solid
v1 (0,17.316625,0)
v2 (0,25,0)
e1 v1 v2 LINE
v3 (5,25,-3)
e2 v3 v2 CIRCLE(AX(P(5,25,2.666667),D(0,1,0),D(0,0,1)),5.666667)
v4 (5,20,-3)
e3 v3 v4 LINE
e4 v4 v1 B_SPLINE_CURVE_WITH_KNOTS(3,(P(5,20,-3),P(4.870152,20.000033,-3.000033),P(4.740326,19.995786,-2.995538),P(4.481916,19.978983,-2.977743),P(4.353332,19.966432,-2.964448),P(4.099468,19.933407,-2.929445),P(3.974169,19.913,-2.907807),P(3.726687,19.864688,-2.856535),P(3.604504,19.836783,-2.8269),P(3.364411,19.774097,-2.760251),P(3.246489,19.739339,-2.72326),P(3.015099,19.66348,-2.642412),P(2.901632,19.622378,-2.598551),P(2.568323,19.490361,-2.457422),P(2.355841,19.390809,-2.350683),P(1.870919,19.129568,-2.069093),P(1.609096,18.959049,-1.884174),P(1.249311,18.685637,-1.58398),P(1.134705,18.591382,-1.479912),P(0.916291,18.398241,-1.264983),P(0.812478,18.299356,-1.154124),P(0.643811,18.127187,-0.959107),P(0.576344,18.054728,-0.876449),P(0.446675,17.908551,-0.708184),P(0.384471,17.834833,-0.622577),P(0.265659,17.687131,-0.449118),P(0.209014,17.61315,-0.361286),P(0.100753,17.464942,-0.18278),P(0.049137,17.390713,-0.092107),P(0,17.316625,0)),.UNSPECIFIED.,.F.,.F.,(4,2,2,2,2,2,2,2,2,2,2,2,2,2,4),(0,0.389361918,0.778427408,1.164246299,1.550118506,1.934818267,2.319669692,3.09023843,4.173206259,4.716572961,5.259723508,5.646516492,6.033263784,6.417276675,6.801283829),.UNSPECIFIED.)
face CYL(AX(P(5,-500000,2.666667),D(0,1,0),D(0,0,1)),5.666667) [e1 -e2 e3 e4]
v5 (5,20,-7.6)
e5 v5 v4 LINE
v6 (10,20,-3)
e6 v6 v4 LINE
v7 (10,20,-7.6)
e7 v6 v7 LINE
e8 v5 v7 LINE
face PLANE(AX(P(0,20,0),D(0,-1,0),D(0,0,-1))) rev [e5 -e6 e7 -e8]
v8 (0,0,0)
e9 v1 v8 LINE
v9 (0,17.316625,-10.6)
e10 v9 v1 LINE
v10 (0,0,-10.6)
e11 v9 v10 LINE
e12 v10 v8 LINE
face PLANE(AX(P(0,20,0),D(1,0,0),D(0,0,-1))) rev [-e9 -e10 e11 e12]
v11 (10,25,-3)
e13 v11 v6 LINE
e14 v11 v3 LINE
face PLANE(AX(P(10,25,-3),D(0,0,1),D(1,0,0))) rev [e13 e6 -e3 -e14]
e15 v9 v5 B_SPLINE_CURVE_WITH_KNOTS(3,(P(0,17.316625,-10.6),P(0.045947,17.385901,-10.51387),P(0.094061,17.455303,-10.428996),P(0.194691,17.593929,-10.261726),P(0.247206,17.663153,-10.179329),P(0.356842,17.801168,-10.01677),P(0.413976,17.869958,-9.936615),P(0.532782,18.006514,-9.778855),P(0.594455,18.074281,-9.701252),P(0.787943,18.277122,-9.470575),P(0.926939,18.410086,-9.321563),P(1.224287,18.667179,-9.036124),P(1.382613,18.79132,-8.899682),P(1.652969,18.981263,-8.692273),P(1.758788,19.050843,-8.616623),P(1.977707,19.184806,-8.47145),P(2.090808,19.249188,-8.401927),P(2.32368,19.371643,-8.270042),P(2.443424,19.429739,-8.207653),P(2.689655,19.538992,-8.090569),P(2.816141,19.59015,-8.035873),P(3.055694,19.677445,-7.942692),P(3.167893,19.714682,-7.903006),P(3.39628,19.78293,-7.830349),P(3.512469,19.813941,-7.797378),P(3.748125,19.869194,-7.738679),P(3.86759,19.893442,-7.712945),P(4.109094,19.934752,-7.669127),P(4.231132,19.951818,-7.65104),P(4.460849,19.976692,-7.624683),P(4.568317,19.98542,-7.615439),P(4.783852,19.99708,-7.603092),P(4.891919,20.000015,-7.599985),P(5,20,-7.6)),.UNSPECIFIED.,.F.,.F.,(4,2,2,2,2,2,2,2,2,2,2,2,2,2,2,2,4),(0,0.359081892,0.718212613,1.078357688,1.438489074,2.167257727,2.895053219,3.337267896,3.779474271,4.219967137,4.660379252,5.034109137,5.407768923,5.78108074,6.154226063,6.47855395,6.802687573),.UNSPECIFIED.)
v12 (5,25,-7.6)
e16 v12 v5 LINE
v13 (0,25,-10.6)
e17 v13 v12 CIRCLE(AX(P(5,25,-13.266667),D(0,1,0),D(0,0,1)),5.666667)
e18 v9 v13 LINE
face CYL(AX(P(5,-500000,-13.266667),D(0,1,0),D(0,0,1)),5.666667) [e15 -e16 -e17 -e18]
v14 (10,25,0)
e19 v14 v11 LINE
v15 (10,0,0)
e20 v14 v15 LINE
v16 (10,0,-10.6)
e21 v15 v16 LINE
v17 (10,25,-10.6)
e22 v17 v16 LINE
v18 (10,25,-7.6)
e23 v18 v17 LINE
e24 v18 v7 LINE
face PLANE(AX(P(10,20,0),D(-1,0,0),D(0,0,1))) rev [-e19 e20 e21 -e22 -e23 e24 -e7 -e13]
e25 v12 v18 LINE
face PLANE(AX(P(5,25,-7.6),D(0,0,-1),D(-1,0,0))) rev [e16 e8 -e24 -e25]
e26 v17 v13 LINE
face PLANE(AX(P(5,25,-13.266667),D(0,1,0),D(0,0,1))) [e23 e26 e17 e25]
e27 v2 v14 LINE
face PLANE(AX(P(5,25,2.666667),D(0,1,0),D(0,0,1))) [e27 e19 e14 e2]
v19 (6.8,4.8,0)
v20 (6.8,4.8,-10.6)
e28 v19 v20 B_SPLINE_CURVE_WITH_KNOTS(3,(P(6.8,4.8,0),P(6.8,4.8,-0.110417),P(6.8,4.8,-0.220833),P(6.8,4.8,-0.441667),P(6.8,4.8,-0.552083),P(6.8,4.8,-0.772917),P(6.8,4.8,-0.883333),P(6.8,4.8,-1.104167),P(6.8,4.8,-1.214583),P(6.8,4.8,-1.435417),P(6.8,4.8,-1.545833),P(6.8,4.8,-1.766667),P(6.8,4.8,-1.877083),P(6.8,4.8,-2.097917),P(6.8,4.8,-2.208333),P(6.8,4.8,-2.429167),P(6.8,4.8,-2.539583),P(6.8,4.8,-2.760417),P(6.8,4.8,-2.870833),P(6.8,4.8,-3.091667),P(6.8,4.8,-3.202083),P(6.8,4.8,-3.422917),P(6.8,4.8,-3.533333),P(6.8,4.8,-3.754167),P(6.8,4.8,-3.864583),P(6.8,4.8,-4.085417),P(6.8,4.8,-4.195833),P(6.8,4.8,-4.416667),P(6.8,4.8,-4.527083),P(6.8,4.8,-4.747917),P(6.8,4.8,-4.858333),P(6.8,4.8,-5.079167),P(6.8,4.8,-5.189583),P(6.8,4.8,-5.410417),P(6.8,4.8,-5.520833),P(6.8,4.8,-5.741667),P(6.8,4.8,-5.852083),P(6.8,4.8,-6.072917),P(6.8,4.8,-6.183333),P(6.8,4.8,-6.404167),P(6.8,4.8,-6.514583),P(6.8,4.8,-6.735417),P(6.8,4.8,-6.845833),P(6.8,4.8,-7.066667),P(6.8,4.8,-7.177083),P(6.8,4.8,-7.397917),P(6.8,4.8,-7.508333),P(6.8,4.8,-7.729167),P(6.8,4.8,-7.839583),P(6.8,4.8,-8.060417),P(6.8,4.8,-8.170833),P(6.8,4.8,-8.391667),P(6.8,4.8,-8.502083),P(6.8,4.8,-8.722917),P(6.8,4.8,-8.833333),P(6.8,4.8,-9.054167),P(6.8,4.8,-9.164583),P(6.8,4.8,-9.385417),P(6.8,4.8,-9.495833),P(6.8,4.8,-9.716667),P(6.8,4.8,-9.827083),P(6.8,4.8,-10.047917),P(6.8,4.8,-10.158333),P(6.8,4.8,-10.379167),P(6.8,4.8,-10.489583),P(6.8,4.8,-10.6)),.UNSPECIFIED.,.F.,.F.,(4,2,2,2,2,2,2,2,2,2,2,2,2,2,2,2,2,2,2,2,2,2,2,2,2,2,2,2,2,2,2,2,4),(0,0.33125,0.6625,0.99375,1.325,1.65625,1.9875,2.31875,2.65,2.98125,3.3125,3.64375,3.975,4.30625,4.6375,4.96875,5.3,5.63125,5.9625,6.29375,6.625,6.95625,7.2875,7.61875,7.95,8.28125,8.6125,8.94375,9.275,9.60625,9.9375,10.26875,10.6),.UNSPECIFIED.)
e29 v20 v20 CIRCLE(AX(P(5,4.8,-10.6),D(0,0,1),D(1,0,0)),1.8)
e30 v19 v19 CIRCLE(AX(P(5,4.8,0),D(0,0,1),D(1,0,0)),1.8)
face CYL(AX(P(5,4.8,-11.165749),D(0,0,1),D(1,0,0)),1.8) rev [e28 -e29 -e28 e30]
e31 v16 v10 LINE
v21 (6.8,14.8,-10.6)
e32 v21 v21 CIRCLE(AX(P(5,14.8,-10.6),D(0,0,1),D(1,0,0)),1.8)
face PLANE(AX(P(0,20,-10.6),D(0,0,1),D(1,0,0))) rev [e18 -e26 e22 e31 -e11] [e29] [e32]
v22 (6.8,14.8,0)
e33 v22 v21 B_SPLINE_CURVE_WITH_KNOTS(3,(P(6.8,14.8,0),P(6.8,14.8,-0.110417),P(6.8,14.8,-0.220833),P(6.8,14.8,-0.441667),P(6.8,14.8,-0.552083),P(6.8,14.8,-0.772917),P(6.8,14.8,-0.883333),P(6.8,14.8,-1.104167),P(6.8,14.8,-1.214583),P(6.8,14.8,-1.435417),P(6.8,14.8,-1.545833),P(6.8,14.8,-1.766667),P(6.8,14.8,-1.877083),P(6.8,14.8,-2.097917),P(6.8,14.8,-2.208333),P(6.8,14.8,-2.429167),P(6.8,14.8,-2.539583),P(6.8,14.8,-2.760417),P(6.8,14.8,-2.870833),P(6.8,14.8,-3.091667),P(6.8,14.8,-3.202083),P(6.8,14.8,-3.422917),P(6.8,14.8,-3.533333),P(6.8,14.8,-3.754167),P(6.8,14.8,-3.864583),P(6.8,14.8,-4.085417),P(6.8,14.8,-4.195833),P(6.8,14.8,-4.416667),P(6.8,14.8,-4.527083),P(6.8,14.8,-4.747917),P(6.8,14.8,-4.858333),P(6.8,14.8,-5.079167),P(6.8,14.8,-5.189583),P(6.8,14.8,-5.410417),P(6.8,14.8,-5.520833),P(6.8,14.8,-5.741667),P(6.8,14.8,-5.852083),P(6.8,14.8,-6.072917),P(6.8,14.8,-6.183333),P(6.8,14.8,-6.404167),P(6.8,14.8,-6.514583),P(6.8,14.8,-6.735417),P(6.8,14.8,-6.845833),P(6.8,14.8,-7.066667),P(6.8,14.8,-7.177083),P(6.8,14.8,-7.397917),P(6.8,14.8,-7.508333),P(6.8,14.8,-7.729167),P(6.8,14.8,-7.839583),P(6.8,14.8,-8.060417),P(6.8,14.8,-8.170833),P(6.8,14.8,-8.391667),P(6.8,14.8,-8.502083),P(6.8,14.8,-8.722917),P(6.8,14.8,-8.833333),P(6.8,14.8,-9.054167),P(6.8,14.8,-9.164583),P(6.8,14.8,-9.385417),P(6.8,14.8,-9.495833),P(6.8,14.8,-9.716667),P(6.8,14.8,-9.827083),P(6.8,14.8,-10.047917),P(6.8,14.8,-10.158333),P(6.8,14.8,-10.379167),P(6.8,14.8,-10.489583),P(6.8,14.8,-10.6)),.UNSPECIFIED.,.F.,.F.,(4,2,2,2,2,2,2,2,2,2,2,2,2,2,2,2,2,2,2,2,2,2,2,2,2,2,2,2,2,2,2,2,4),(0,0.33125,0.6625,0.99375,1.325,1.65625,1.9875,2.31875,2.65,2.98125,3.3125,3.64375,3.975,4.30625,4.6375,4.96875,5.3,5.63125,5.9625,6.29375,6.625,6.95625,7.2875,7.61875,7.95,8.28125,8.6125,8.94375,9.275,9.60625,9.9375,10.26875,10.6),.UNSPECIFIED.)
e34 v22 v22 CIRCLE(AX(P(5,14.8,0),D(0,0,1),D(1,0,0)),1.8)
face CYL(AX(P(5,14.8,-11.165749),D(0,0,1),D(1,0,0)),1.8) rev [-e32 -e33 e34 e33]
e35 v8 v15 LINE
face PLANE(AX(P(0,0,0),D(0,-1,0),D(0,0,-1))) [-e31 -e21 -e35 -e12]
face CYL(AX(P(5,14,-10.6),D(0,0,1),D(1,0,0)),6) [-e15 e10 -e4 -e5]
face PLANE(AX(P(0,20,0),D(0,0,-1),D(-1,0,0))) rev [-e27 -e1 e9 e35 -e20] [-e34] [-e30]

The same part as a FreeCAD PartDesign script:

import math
import FreeCAD as App
import Part
import Sketcher

V = App.Vector

doc = App.newDocument("Part")
body = doc.addObject("PartDesign::Body", "Body")

sketch1 = doc.addObject("Sketcher::SketchObject", "Sketch")
body.addObject(sketch1)
sketch1.AttachmentSupport = (doc.XZ_Plane, [""])
sketch1.MapMode = "FlatFace"
sketch1.addGeometry(Part.LineSegment(V(0, -10.6, 0), V(0, 0, 0)), False)
sketch1.addGeometry(Part.LineSegment(V(0, 0, 0), V(10, 0, 0)), False)
sketch1.addGeometry(Part.LineSegment(V(10, 0, 0), V(10, -10.6, 0)), False)
sketch1.addGeometry(Part.LineSegment(V(10, -10.6, 0), V(0, -10.6, 0)), False)
sketch1.addConstraint(Sketcher.Constraint("Coincident", 0, 2, 1, 1))
sketch1.addConstraint(Sketcher.Constraint("Coincident", 1, 2, 2, 1))
sketch1.addConstraint(Sketcher.Constraint("Coincident", 2, 2, 3, 1))
sketch1.addConstraint(Sketcher.Constraint("Coincident", 3, 2, 0, 1))
sketch1.addConstraint(Sketcher.Constraint("Vertical", 0))
sketch1.addConstraint(Sketcher.Constraint("Horizontal", 1))
sketch1.addConstraint(Sketcher.Constraint("Vertical", 2))
sketch1.addConstraint(Sketcher.Constraint("Horizontal", 3))
sketch1.addConstraint(Sketcher.Constraint("Coincident", 0, 2, -1, 1))
sketch1.addConstraint(Sketcher.Constraint("DistanceX", 1, 1, 1, 2, 10.0))
sketch1.addConstraint(Sketcher.Constraint("DistanceY", 0, 1, 0, 2, 10.6))
pad1 = doc.addObject("PartDesign::Pad", "Pad")
body.addObject(pad1)
pad1.Profile = sketch1
pad1.Length = 20
pad1.Reversed = True

sketch2 = doc.addObject("Sketcher::SketchObject", "Sketch001")
body.addObject(sketch2)
sketch2.AttachmentSupport = (doc.XY_Plane, [""])
sketch2.MapMode = "FlatFace"
sketch2.addGeometry(Part.LineSegment(V(0, 20, 0), V(0, 17.316625, 0)), False)
sketch2.addGeometry(Part.ArcOfCircle(Part.Circle(V(5, 14, 0), V(0, 0, 1), 6), math.radians(90), math.radians(146.44269)), False)
sketch2.addGeometry(Part.LineSegment(V(5, 20, 0), V(0, 20, 0)), False)
sketch2.addConstraint(Sketcher.Constraint("Coincident", 0, 2, 1, 2))
sketch2.addConstraint(Sketcher.Constraint("Tangent", 1, 1, 2, 1))
sketch2.addConstraint(Sketcher.Constraint("Coincident", 2, 2, 0, 1))
sketch2.addConstraint(Sketcher.Constraint("Vertical", 0))
sketch2.addConstraint(Sketcher.Constraint("Horizontal", 2))
sketch2.addConstraint(Sketcher.Constraint("PointOnObject", 0, 2, -2))
sketch2.addConstraint(Sketcher.Constraint("Radius", 1, 6.0))
sketch2.addConstraint(Sketcher.Constraint("DistanceX", 2, 2, 2, 1, 5.0))
sketch2.addConstraint(Sketcher.Constraint("DistanceY", -1, 1, 1, 3, 14.0))
pocket1 = doc.addObject("PartDesign::Pocket", "Pocket")
body.addObject(pocket1)
pocket1.Profile = sketch2
pocket1.Type = "ThroughAll"

sketch3 = doc.addObject("Sketcher::SketchObject", "Sketch002")
body.addObject(sketch3)
sketch3.AttachmentSupport = (doc.XZ_Plane, [""])
sketch3.MapMode = "FlatFace"
sketch3.AttachmentOffset = App.Placement(V(0, 0, -20), App.Rotation())
sketch3.addGeometry(Part.LineSegment(V(10, -10.6, 0), V(0, -10.6, 0)), False)
sketch3.addGeometry(Part.ArcOfCircle(Part.Circle(V(5, -13.266667, 0), V(0, 0, 1), 5.666667), math.radians(90), math.radians(151.927513)), False)
sketch3.addGeometry(Part.LineSegment(V(5, -7.6, 0), V(10, -7.6, 0)), False)
sketch3.addGeometry(Part.LineSegment(V(10, -7.6, 0), V(10, -10.6, 0)), False)
sketch3.addGeometry(Part.LineSegment(V(0, 0, 0), V(10, 0, 0)), False)
sketch3.addGeometry(Part.LineSegment(V(10, 0, 0), V(10, -3, 0)), False)
sketch3.addGeometry(Part.LineSegment(V(10, -3, 0), V(5, -3, 0)), False)
sketch3.addGeometry(Part.ArcOfCircle(Part.Circle(V(5, 2.666667, 0), V(0, 0, 1), 5.666667), math.radians(-151.927513), math.radians(-90)), False)
sketch3.addConstraint(Sketcher.Constraint("Coincident", 0, 2, 1, 2))
sketch3.addConstraint(Sketcher.Constraint("Tangent", 1, 1, 2, 1))
sketch3.addConstraint(Sketcher.Constraint("Coincident", 2, 2, 3, 1))
sketch3.addConstraint(Sketcher.Constraint("Coincident", 3, 2, 0, 1))
sketch3.addConstraint(Sketcher.Constraint("Coincident", 4, 2, 5, 1))
sketch3.addConstraint(Sketcher.Constraint("Coincident", 5, 2, 6, 1))
sketch3.addConstraint(Sketcher.Constraint("Tangent", 6, 2, 7, 2))
sketch3.addConstraint(Sketcher.Constraint("Coincident", 7, 1, 4, 1))
sketch3.addConstraint(Sketcher.Constraint("Horizontal", 0))
sketch3.addConstraint(Sketcher.Constraint("Horizontal", 2))
sketch3.addConstraint(Sketcher.Constraint("Vertical", 3))
sketch3.addConstraint(Sketcher.Constraint("Horizontal", 4))
sketch3.addConstraint(Sketcher.Constraint("Vertical", 5))
sketch3.addConstraint(Sketcher.Constraint("Horizontal", 6))
sketch3.addConstraint(Sketcher.Constraint("Coincident", 7, 1, -1, 1))
sketch3.addConstraint(Sketcher.Constraint("Equal", 1, 7))
sketch3.addConstraint(Sketcher.Constraint("PointOnObject", 0, 2, -2))
sketch3.addConstraint(Sketcher.Constraint("Vertical", 1, 3, 7, 3))
sketch3.addConstraint(Sketcher.Constraint("Vertical", 3, 2, 4, 2))
sketch3.addConstraint(Sketcher.Constraint("DistanceX", 0, 2, 0, 1, 10.0))
sketch3.addConstraint(Sketcher.Constraint("DistanceX", 2, 1, 2, 2, 5.0))
sketch3.addConstraint(Sketcher.Constraint("DistanceY", 3, 2, 3, 1, 3.0))
sketch3.addConstraint(Sketcher.Constraint("DistanceY", 0, 2, -1, 1, 10.6))
pad2 = doc.addObject("PartDesign::Pad", "Pad001")
body.addObject(pad2)
pad2.Profile = sketch3
pad2.Length = 5
pad2.Reversed = True

sketch4 = doc.addObject("Sketcher::SketchObject", "Sketch003")
body.addObject(sketch4)
sketch4.AttachmentSupport = (doc.XZ_Plane, [""])
sketch4.MapMode = "FlatFace"
sketch4.AttachmentOffset = App.Placement(V(0, 0, -20), App.Rotation())
sketch4.addGeometry(Part.LineSegment(V(10, -10.6, 0), V(0, -10.6, 0)), False)
sketch4.addGeometry(Part.ArcOfCircle(Part.Circle(V(5, -13.266667, 0), V(0, 0, 1), 5.666667), math.radians(90), math.radians(151.927513)), False)
sketch4.addGeometry(Part.LineSegment(V(5, -7.6, 0), V(10, -7.6, 0)), False)
sketch4.addGeometry(Part.LineSegment(V(10, -7.6, 0), V(10, -10.6, 0)), False)
sketch4.addConstraint(Sketcher.Constraint("Coincident", 0, 2, 1, 2))
sketch4.addConstraint(Sketcher.Constraint("Tangent", 1, 1, 2, 1))
sketch4.addConstraint(Sketcher.Constraint("Coincident", 2, 2, 3, 1))
sketch4.addConstraint(Sketcher.Constraint("Coincident", 3, 2, 0, 1))
sketch4.addConstraint(Sketcher.Constraint("Horizontal", 0))
sketch4.addConstraint(Sketcher.Constraint("Horizontal", 2))
sketch4.addConstraint(Sketcher.Constraint("Vertical", 3))
sketch4.addConstraint(Sketcher.Constraint("PointOnObject", 0, 2, -2))
sketch4.addConstraint(Sketcher.Constraint("DistanceX", 0, 2, 0, 1, 10.0))
sketch4.addConstraint(Sketcher.Constraint("DistanceX", 2, 1, 2, 2, 5.0))
sketch4.addConstraint(Sketcher.Constraint("DistanceY", 3, 2, 3, 1, 3.0))
sketch4.addConstraint(Sketcher.Constraint("DistanceY", 0, 2, -1, 1, 10.6))
pad3 = doc.addObject("PartDesign::Pad", "Pad002")
body.addObject(pad3)
pad3.Profile = sketch4
pad3.Type = "UpToFirst"

sketch5 = doc.addObject("Sketcher::SketchObject", "Sketch004")
body.addObject(sketch5)
sketch5.AttachmentSupport = (doc.XZ_Plane, [""])
sketch5.MapMode = "FlatFace"
sketch5.AttachmentOffset = App.Placement(V(0, 0, -20), App.Rotation())
sketch5.addGeometry(Part.LineSegment(V(0, 0, 0), V(10, 0, 0)), False)
sketch5.addGeometry(Part.LineSegment(V(10, 0, 0), V(10, -3, 0)), False)
sketch5.addGeometry(Part.LineSegment(V(10, -3, 0), V(5, -3, 0)), False)
sketch5.addGeometry(Part.ArcOfCircle(Part.Circle(V(5, 2.666667, 0), V(0, 0, 1), 5.666667), math.radians(-151.927513), math.radians(-90)), False)
sketch5.addConstraint(Sketcher.Constraint("Coincident", 0, 2, 1, 1))
sketch5.addConstraint(Sketcher.Constraint("Coincident", 1, 2, 2, 1))
sketch5.addConstraint(Sketcher.Constraint("Tangent", 2, 2, 3, 2))
sketch5.addConstraint(Sketcher.Constraint("Coincident", 3, 1, 0, 1))
sketch5.addConstraint(Sketcher.Constraint("Horizontal", 0))
sketch5.addConstraint(Sketcher.Constraint("Vertical", 1))
sketch5.addConstraint(Sketcher.Constraint("Horizontal", 2))
sketch5.addConstraint(Sketcher.Constraint("Coincident", 3, 1, -1, 1))
sketch5.addConstraint(Sketcher.Constraint("DistanceX", 0, 1, 0, 2, 10.0))
sketch5.addConstraint(Sketcher.Constraint("DistanceX", 2, 2, 2, 1, 5.0))
sketch5.addConstraint(Sketcher.Constraint("DistanceY", 1, 2, 1, 1, 3.0))
pad4 = doc.addObject("PartDesign::Pad", "Pad003")
body.addObject(pad4)
pad4.Profile = sketch5
pad4.Type = "UpToFirst"

sketch6 = doc.addObject("Sketcher::SketchObject", "Sketch005")
body.addObject(sketch6)
sketch6.AttachmentSupport = (doc.XY_Plane, [""])
sketch6.MapMode = "FlatFace"
sketch6.addGeometry(Part.Circle(V(5, 14.8, 0), V(0, 0, 1), 1.8), False)
sketch6.addGeometry(Part.Circle(V(5, 4.8, 0), V(0, 0, 1), 1.8), False)
sketch6.addConstraint(Sketcher.Constraint("Equal", 0, 1))
sketch6.addConstraint(Sketcher.Constraint("Vertical", 0, 3, 1, 3))
sketch6.addConstraint(Sketcher.Constraint("Diameter", 0, 3.6))
sketch6.addConstraint(Sketcher.Constraint("DistanceX", -1, 1, 0, 3, 5.0))
sketch6.addConstraint(Sketcher.Constraint("DistanceY", 1, 3, 0, 3, 10.0))
sketch6.addConstraint(Sketcher.Constraint("DistanceY", -1, 1, 0, 3, 14.8))
pocket2 = doc.addObject("PartDesign::Pocket", "Pocket001")
body.addObject(pocket2)
pocket2.Profile = sketch6
pocket2.Type = "ThroughAll"

doc.recompute()
